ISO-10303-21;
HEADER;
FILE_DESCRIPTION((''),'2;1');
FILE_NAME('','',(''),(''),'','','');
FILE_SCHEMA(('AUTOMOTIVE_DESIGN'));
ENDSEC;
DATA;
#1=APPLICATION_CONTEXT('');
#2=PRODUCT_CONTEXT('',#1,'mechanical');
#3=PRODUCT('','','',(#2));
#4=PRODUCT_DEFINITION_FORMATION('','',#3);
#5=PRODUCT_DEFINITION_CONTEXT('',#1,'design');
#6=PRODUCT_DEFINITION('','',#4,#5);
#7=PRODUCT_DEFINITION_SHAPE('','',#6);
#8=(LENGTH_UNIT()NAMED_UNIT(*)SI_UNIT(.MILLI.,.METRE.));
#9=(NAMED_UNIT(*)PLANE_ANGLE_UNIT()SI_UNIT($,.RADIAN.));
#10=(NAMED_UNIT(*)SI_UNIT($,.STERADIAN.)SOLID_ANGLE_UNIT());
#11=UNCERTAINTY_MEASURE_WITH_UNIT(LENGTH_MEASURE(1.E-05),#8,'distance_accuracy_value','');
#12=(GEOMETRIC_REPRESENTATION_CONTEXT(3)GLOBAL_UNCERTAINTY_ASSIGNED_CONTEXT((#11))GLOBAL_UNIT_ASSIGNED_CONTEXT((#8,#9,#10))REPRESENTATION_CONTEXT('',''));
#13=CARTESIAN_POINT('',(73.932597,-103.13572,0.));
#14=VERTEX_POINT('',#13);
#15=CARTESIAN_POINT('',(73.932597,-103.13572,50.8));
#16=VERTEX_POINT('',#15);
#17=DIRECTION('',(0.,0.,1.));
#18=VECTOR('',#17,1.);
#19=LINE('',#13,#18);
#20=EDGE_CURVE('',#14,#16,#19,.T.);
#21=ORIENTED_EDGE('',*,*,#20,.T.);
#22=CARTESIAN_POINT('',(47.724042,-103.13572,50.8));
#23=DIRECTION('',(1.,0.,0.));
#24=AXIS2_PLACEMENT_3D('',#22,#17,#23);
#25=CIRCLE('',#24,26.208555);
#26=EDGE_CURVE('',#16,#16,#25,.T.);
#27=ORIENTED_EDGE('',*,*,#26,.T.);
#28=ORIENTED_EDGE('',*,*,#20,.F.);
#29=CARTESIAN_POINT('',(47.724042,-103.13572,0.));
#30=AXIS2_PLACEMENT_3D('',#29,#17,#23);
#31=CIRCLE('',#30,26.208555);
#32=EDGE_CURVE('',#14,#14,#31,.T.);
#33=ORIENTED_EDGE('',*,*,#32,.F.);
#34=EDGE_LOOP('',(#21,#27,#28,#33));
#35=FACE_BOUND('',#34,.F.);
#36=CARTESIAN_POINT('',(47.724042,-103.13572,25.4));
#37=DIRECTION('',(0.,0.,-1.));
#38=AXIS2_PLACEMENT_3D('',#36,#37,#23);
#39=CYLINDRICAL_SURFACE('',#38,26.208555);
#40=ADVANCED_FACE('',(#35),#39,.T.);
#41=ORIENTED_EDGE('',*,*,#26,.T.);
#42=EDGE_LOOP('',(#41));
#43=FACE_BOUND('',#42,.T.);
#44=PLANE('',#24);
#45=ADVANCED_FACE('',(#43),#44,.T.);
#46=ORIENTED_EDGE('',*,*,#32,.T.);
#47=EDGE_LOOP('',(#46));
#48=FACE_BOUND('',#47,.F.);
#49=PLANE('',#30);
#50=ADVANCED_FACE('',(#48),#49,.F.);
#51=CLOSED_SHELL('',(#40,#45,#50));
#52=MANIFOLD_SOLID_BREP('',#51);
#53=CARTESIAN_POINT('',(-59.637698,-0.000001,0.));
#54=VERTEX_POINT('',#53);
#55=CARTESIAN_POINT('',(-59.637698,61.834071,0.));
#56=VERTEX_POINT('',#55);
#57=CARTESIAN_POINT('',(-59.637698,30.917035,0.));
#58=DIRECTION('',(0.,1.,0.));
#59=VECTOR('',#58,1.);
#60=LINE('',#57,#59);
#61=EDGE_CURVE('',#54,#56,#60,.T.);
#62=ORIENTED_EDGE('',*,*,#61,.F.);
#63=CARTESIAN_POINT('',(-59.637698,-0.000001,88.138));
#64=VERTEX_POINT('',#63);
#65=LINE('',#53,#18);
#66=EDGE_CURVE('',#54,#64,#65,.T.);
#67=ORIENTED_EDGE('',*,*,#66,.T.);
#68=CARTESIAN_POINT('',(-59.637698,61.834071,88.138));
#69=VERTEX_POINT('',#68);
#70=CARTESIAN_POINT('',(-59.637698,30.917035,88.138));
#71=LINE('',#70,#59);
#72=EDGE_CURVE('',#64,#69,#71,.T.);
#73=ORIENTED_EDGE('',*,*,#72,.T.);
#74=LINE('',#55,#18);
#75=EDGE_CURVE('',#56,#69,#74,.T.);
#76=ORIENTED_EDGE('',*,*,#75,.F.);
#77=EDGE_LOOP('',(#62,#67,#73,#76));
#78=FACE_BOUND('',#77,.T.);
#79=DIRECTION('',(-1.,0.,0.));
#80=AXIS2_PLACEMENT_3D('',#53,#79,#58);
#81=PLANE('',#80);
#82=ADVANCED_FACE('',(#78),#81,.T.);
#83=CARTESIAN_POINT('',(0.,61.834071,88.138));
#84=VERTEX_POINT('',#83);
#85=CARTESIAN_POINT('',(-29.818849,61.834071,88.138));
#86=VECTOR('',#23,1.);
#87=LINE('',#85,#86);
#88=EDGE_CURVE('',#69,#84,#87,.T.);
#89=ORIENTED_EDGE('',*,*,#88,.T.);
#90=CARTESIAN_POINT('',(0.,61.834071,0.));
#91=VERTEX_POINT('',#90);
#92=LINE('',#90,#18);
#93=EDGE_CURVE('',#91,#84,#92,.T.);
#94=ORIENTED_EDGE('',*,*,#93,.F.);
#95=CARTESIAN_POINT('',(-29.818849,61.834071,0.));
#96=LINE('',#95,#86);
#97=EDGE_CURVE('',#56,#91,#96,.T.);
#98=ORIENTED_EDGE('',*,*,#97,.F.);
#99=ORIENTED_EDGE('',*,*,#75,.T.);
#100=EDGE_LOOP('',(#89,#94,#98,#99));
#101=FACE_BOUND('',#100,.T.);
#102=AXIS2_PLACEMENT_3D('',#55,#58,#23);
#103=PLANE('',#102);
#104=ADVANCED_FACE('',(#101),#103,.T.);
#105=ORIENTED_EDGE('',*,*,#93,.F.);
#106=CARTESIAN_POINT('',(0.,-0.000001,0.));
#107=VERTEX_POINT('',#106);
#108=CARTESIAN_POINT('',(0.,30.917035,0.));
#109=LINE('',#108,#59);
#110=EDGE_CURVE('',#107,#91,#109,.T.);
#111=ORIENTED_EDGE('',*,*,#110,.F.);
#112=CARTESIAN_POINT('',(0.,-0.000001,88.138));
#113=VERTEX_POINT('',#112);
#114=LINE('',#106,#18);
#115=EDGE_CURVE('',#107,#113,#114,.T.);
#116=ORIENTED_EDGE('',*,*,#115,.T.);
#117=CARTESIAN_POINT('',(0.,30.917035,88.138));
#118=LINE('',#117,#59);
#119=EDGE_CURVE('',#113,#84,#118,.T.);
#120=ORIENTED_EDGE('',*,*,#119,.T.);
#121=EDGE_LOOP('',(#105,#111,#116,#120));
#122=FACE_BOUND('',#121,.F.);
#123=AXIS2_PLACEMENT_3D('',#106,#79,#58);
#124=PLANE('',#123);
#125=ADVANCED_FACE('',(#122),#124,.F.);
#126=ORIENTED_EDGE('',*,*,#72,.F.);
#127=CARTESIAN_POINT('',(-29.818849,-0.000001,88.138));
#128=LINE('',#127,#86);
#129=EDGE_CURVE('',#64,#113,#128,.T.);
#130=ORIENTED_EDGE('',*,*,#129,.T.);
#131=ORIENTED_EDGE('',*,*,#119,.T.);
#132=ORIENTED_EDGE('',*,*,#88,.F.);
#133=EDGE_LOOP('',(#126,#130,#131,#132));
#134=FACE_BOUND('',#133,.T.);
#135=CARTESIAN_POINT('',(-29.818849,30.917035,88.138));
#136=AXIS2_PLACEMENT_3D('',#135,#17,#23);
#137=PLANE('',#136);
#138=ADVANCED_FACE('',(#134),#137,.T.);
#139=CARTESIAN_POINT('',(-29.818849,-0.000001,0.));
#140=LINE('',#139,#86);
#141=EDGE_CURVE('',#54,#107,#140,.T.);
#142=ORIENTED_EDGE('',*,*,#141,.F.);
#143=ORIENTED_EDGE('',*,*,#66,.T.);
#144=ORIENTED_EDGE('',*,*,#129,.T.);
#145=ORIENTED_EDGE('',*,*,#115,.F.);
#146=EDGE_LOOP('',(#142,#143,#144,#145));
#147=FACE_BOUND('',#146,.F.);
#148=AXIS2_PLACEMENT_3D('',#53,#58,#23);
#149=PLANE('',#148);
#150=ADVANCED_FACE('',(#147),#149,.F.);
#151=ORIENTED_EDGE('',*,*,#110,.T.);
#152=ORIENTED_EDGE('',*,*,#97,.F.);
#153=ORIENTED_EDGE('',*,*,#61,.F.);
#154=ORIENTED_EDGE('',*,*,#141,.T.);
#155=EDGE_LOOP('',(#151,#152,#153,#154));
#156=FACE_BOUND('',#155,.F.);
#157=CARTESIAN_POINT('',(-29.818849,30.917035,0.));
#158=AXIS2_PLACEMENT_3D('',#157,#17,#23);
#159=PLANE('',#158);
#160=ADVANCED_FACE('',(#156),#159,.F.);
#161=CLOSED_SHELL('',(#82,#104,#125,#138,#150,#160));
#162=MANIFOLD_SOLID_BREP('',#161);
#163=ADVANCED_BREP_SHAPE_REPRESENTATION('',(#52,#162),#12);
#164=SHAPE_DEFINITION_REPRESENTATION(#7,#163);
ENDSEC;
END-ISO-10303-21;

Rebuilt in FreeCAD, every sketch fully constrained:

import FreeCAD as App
import Part
import Sketcher
Q = App.Units.Quantity

doc = App.newDocument("Part")
body = doc.addObject("PartDesign::Body", "Body")

sketch1 = doc.addObject("Sketcher::SketchObject", "Sketch")
body.addObject(sketch1)
sketch1.AttachmentSupport = (doc.XY_Plane, [""])
sketch1.MapMode = "FlatFace"
sketch1.addGeometry([
    Part.LineSegment(App.Vector(-60, 62, 0), App.Vector(-60, 0, 0)),
    Part.LineSegment(App.Vector(-60, 0, 0), App.Vector(0, 0, 0)),
    Part.LineSegment(App.Vector(0, 0, 0), App.Vector(0, 62, 0)),
    Part.LineSegment(App.Vector(0, 62, 0), App.Vector(-60, 62, 0)),
], False)
sketch1.addConstraint([
    Sketcher.Constraint("Coincident", 0, 2, 1, 1),
    Sketcher.Constraint("Coincident", 1, 2, 2, 1),
    Sketcher.Constraint("Coincident", 2, 2, 3, 1),
    Sketcher.Constraint("Coincident", 3, 2, 0, 1),
    Sketcher.Constraint("Vertical", 0),
    Sketcher.Constraint("Horizontal", 1),
    Sketcher.Constraint("Vertical", 2),
    Sketcher.Constraint("Horizontal", 3),
    Sketcher.Constraint("Coincident", 1, 2, -1, 1),
    Sketcher.Constraint("DistanceX", 1, 1, 1, 2, 59.637699),
    Sketcher.Constraint("DistanceY", 0, 2, 0, 1, 61.834071),
])
pad1 = doc.addObject("PartDesign::Pad", "Pad")
body.addObject(pad1)
pad1.Profile = sketch1
pad1.Length = Q("3.47 in")
body2 = doc.addObject("PartDesign::Body", "Body001")

sketch2 = doc.addObject("Sketcher::SketchObject", "Sketch001")
body2.addObject(sketch2)
sketch2.AttachmentSupport = (doc.getObject("XY_Plane001"), [""])
sketch2.MapMode = "FlatFace"
sketch2.addGeometry(Part.Circle(App.Vector(48, -103, 0), App.Vector(0, 0, 1), 26), False)
sketch2.addConstraint([
    Sketcher.Constraint("Diameter", 0, 52.41711),
    Sketcher.Constraint("DistanceX", -1, 1, 0, 3, 47.724042),
    Sketcher.Constraint("DistanceY", 0, 3, -1, 1, 103.13572),
])
pad2 = doc.addObject("PartDesign::Pad", "Pad001")
body2.addObject(pad2)
pad2.Profile = sketch2
pad2.Length = Q("1 in")

sketch3 = doc.addObject("Sketcher::SketchObject", "Sketch002")
body2.addObject(sketch3)
sketch3.AttachmentSupport = (doc.getObject("XY_Plane001"), [""])
sketch3.MapMode = "FlatFace"
sketch3.AttachmentOffset = App.Placement(App.Vector(0, 0, 1 * 25.4), App.Rotation())
sketch3.addGeometry(Part.Circle(App.Vector(48, -103, 0), App.Vector(0, 0, 1), 26), False)
sketch3.addConstraint([
    Sketcher.Constraint("Diameter", 0, 52.41711),
    Sketcher.Constraint("DistanceX", -1, 1, 0, 3, 47.724042),
    Sketcher.Constraint("DistanceY", 0, 3, -1, 1, 103.13572),
])
pad3 = doc.addObject("PartDesign::Pad", "Pad002")
body2.addObject(pad3)
pad3.Profile = sketch3
pad3.Length = Q("1 in")

doc.recompute()
